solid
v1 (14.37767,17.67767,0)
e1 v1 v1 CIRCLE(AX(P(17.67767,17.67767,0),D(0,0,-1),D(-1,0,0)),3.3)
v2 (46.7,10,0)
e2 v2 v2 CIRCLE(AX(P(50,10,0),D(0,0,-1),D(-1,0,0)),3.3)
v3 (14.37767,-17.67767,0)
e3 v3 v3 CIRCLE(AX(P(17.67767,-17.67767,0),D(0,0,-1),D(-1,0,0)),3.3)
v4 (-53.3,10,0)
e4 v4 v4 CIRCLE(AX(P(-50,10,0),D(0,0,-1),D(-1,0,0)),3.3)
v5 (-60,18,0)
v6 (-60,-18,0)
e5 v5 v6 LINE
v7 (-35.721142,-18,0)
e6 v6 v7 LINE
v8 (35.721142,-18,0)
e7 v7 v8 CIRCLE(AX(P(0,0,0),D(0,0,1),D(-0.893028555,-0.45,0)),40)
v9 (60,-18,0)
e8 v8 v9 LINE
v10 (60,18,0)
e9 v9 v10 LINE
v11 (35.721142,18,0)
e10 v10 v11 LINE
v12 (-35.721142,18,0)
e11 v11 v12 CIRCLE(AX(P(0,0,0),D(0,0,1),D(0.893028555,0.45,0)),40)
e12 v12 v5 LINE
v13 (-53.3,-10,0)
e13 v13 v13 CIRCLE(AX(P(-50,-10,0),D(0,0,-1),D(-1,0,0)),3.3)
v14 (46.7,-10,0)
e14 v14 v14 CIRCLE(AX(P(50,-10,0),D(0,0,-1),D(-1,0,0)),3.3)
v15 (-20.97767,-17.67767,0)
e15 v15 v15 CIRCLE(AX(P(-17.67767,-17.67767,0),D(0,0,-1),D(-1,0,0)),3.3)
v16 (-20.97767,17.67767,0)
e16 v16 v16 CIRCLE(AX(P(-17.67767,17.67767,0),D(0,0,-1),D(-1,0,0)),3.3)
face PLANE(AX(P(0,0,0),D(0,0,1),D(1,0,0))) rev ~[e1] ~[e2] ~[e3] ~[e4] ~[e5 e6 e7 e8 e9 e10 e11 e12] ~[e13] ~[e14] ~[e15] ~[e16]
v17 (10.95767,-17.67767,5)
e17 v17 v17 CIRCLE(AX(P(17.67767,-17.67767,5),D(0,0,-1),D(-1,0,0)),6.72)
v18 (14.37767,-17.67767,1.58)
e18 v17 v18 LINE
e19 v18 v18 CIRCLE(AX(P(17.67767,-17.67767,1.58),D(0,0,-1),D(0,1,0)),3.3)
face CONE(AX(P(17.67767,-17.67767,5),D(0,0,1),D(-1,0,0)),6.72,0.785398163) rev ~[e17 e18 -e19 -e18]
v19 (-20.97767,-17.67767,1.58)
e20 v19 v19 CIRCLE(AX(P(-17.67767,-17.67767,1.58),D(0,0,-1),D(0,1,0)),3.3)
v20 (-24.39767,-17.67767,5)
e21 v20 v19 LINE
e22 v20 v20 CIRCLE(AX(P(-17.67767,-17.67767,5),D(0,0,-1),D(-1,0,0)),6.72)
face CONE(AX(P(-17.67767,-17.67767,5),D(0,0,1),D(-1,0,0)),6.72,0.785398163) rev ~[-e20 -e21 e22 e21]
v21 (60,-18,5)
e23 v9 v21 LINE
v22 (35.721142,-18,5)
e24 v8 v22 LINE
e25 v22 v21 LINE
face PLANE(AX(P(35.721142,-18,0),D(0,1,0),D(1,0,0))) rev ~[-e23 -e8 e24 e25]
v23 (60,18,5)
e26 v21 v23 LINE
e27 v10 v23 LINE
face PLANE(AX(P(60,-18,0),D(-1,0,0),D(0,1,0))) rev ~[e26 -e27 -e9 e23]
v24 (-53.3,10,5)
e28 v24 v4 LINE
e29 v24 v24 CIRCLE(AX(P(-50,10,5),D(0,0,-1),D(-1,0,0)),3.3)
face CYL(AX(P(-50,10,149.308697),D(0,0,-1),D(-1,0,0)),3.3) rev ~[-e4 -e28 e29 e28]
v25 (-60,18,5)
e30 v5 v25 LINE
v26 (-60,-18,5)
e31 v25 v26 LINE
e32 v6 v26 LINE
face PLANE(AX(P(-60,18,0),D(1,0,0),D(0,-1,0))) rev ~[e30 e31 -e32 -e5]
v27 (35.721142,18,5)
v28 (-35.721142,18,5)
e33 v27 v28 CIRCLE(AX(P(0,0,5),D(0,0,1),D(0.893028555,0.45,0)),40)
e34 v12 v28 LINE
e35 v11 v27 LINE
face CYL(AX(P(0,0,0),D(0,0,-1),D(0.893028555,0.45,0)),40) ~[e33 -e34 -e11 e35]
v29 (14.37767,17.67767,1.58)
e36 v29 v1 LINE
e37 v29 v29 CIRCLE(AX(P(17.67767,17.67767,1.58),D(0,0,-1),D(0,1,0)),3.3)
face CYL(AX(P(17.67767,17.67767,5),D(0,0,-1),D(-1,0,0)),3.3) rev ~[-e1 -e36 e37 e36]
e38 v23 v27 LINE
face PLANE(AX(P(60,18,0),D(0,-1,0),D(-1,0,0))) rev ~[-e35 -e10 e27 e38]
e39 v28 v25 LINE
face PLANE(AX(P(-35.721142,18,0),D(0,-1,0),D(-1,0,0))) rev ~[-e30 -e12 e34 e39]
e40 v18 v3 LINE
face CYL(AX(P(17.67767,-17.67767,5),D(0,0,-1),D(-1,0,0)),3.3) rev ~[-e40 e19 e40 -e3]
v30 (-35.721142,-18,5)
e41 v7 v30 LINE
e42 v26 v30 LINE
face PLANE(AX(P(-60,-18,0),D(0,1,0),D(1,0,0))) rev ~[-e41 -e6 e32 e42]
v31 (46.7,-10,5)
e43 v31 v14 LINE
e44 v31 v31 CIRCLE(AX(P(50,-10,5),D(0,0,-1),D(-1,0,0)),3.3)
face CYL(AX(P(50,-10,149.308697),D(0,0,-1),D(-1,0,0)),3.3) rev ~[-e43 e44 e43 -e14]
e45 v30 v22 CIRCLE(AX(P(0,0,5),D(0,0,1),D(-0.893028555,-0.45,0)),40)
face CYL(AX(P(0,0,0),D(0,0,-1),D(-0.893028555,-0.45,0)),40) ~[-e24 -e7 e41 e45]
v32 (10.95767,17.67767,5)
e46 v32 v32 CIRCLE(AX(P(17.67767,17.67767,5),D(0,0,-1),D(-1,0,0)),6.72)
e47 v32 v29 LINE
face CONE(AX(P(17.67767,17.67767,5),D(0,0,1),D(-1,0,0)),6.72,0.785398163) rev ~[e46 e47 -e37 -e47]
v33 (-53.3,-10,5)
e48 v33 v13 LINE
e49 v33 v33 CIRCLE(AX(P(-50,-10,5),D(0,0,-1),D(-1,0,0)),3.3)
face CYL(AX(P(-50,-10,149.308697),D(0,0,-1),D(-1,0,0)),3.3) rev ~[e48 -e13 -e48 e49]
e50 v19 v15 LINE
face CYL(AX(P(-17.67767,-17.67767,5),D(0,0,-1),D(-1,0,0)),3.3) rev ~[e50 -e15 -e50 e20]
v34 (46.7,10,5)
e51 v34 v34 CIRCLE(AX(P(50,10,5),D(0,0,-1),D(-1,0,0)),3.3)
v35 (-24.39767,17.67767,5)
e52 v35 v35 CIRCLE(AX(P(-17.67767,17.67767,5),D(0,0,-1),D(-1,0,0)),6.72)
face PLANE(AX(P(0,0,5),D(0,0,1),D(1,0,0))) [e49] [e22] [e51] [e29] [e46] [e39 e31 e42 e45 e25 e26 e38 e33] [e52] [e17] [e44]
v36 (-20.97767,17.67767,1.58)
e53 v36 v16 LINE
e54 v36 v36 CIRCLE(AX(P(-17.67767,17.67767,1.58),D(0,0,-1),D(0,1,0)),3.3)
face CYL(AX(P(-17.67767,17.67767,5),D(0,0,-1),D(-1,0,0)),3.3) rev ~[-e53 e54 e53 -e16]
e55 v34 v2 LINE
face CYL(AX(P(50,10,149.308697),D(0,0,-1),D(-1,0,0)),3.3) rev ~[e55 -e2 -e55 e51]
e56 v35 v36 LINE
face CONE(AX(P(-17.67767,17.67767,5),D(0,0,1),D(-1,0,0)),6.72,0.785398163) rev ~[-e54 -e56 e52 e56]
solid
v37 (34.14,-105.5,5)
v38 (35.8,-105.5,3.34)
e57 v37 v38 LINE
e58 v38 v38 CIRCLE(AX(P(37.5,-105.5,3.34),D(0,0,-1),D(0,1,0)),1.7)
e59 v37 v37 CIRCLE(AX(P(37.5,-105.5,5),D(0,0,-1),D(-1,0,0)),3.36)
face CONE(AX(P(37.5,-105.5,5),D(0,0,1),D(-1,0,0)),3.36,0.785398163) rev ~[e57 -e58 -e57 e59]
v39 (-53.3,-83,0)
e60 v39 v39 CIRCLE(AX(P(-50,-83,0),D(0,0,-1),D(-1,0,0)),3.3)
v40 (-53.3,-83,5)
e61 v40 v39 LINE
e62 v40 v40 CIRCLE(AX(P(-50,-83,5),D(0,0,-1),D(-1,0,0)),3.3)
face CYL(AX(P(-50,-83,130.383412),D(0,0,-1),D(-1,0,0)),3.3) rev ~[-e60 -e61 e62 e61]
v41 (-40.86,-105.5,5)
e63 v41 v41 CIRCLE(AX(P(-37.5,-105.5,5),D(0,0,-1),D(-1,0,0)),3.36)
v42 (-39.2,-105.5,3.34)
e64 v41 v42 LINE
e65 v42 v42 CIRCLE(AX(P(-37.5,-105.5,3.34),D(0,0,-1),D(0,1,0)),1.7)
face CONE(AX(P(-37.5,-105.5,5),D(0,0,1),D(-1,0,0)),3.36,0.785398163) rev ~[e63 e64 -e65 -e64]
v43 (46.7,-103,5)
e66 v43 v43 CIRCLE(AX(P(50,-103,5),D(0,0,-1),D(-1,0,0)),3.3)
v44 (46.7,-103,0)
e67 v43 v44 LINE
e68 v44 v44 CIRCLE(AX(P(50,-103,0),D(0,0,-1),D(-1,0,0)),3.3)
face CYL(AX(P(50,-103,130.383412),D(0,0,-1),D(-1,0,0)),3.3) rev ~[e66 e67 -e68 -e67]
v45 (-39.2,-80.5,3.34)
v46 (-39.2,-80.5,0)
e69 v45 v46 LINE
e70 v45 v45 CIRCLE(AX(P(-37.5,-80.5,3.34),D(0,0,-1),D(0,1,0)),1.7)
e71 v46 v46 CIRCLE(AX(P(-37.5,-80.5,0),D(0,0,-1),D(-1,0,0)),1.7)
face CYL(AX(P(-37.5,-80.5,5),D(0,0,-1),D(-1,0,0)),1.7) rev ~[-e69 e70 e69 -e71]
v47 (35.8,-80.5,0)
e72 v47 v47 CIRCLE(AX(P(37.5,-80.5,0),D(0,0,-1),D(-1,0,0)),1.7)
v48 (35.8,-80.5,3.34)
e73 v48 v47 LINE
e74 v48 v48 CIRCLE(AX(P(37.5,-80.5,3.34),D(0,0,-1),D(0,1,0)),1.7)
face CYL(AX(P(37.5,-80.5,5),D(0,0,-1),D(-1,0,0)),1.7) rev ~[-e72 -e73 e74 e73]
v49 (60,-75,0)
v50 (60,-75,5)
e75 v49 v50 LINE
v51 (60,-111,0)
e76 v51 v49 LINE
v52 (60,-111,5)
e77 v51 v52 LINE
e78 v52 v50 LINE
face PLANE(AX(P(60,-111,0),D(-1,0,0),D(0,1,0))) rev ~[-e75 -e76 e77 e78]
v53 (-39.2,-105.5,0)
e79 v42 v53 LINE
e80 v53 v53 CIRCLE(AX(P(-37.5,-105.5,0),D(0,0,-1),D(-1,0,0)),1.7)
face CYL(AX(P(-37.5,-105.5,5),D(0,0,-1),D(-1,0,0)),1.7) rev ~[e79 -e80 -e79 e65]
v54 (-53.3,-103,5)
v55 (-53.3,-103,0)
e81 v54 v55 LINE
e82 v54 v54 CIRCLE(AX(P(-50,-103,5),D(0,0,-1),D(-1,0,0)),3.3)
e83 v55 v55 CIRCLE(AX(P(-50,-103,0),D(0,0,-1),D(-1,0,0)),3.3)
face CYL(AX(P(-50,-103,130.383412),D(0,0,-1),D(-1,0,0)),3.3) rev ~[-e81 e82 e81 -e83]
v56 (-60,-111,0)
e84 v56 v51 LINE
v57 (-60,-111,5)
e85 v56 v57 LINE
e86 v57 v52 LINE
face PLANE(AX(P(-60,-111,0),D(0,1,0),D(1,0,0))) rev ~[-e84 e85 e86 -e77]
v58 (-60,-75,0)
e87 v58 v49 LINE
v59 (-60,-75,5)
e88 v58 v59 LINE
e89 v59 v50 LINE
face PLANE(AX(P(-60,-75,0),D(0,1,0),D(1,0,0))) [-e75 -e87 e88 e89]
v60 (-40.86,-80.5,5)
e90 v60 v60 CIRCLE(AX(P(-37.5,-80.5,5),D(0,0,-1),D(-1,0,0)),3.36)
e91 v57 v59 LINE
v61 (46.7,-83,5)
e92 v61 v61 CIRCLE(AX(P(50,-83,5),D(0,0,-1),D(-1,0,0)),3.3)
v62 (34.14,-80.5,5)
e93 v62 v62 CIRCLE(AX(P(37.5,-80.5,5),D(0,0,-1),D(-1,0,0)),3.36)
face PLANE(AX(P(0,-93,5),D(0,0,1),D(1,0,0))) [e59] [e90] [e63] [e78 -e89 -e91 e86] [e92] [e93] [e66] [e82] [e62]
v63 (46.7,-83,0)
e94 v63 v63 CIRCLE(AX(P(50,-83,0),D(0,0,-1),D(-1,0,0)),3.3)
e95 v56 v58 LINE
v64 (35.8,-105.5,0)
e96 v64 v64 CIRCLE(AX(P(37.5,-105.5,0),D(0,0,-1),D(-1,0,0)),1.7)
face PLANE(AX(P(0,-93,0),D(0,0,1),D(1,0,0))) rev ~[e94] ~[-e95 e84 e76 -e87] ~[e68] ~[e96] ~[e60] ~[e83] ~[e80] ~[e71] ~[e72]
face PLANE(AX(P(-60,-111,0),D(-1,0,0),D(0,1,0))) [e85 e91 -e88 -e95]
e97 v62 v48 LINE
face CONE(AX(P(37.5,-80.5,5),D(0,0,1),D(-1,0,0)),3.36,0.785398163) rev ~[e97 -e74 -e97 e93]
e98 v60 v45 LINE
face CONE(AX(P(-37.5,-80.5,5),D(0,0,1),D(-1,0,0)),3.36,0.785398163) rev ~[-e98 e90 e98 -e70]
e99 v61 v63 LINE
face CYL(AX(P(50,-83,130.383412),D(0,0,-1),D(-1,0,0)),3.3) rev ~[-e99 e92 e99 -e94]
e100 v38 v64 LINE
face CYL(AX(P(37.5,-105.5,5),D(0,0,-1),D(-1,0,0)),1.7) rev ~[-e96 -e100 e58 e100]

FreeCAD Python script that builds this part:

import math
import FreeCAD as App
import Part
import Sketcher
from FreeCAD import Vector


def add_polygon(sketch, points):
    """Adds a closed chain of lines whose ends are joined by coincident constraints."""
    first, n = sketch.GeometryCount, len(points)
    for a, b in zip(points, points[1:] + points[:1]):
        sketch.addGeometry(Part.LineSegment(App.Vector(*a, 0), App.Vector(*b, 0)), False)
    for i in range(n):
        sketch.addConstraint(Sketcher.Constraint("Coincident", first + i, 2, first + (i + 1) % n, 1))

doc = App.newDocument("Part")
body = doc.addObject("PartDesign::Body", "Body")

# Sketch on XY plane
sketch1 = body.newObject("Sketcher::SketchObject", "Sketch")
sketch1.AttachmentSupport = (doc.getObject("XY_Plane"), [""])
sketch1.MapMode = "FlatFace"
sketch1.addGeometry([
    Part.LineSegment(Vector(-60, 18, 0), Vector(-60, -18, 0)),  # 0
    Part.LineSegment(Vector(-60, -18, 0), Vector(-36, -18, 0)),  # 1
    Part.ArcOfCircle(Part.Circle(Vector(0, 0, 0), Vector(0, 0, 1), 40), math.radians(-153), math.radians(-27)),  # 2
    Part.LineSegment(Vector(36, -18, 0), Vector(60, -18, 0)),  # 3
    Part.LineSegment(Vector(60, -18, 0), Vector(60, 18, 0)),  # 4
    Part.LineSegment(Vector(60, 18, 0), Vector(36, 18, 0)),  # 5
    Part.ArcOfCircle(Part.Circle(Vector(0, 0, 0), Vector(0, 0, 1), 40), math.radians(27), math.radians(153)),  # 6
    Part.LineSegment(Vector(-36, 18, 0), Vector(-60, 18, 0)),  # 7
], False)
sketch1.addConstraint([
    Sketcher.Constraint("Coincident", 0, 2, 1, 1),
    Sketcher.Constraint("Coincident", 1, 2, 2, 1),
    Sketcher.Constraint("Coincident", 2, 2, 3, 1),
    Sketcher.Constraint("Coincident", 3, 2, 4, 1),
    Sketcher.Constraint("Coincident", 4, 2, 5, 1),
    Sketcher.Constraint("Coincident", 5, 2, 6, 1),
    Sketcher.Constraint("Coincident", 6, 2, 7, 1),
    Sketcher.Constraint("Coincident", 7, 2, 0, 1),
    Sketcher.Constraint("Vertical", 0),
    Sketcher.Constraint("Horizontal", 1),
    Sketcher.Constraint("Horizontal", 3),
    Sketcher.Constraint("Vertical", 4),
    Sketcher.Constraint("Horizontal", 5),
    Sketcher.Constraint("Horizontal", 7),
    Sketcher.Constraint("Coincident", 2, 3, -1, 1),
    Sketcher.Constraint("Coincident", 6, 3, -1, 1),
    Sketcher.Constraint("Equal", 2, 6),
    Sketcher.Constraint("Symmetric", 0, 2, 4, 2, -1, 1),
    Sketcher.Constraint("Horizontal", 1, 2, 2, 2),
    Sketcher.Constraint("Horizontal", 5, 2, 6, 2),
    Sketcher.Constraint("Radius", 2, 40.0),
    Sketcher.Constraint("DistanceY", 0, 2, 0, 1, 36.0),
    Sketcher.Constraint("DistanceX", 0, 2, -1, 1, 60.0),
])
pad1 = body.newObject("PartDesign::Pad", "Pad")
pad1.Profile = sketch1
pad1.Length = 5

# Sketch on XY plane
sketch2 = body.newObject("Sketcher::SketchObject", "Sketch001")
sketch2.AttachmentSupport = (doc.getObject("XY_Plane"), [""])
sketch2.MapMode = "FlatFace"
sketch2.AttachmentOffset = App.Placement(Vector(0, 0, 5), App.Rotation())
sketch2.addGeometry([
    Part.Circle(Vector(-17.7, 17.7, 0), Vector(0, 0, 1), 3.3),
    Part.Circle(Vector(17.7, 17.7, 0), Vector(0, 0, 1), 3.3),
    Part.Circle(Vector(17.7, -17.7, 0), Vector(0, 0, 1), 3.3),
    Part.Circle(Vector(-17.7, -17.7, 0), Vector(0, 0, 1), 3.3),
], False)
sketch2.addConstraint([
    Sketcher.Constraint("Equal", 0, 1),
    Sketcher.Constraint("Equal", 1, 2),
    Sketcher.Constraint("Equal", 2, 3),
    Sketcher.Constraint("Symmetric", 0, 3, 2, 3, -1, 1),
    Sketcher.Constraint("Symmetric", 1, 3, 3, 3, -1, 1),
    Sketcher.Constraint("Symmetric", 0, 3, 1, 3, -2),
    Sketcher.Constraint("Diameter", 0, 6.6),
    Sketcher.Constraint("DistanceX", 0, 3, -1, 1, 17.67767),
    Sketcher.Constraint("DistanceY", -1, 1, 0, 3, 17.67767),
])
doc.recompute()
hole = body.newObject("PartDesign::Hole", "Hole")
hole.Profile = sketch2
hole.ThreadType = "None"
hole.Diameter = 6.6
hole.DepthType = "ThroughAll"
hole.HoleCutType = "Countersink"
hole.HoleCutDiameter = 13.44
hole.HoleCutCountersinkAngle = 90

# Sketch on XY plane
sketch3 = body.newObject("Sketcher::SketchObject", "Sketch002")
sketch3.AttachmentSupport = (doc.getObject("XY_Plane"), [""])
sketch3.MapMode = "FlatFace"
sketch3.AttachmentOffset = App.Placement(Vector(0, 0, 5), App.Rotation())
sketch3.addGeometry([
    Part.Circle(Vector(-50, 10, 0), Vector(0, 0, 1), 3.3),
    Part.Circle(Vector(-50, -10, 0), Vector(0, 0, 1), 3.3),
    Part.Circle(Vector(50, -10, 0), Vector(0, 0, 1), 3.3),
    Part.Circle(Vector(50, 10, 0), Vector(0, 0, 1), 3.3),
], False)
sketch3.addConstraint([
    Sketcher.Constraint("Equal", 0, 1),
    Sketcher.Constraint("Equal", 1, 2),
    Sketcher.Constraint("Equal", 2, 3),
    Sketcher.Constraint("Symmetric", 0, 3, 2, 3, -1, 1),
    Sketcher.Constraint("Symmetric", 1, 3, 3, 3, -1, 1),
    Sketcher.Constraint("Symmetric", 1, 3, 2, 3, -2),
    Sketcher.Constraint("Diameter", 0, 6.6),
    Sketcher.Constraint("DistanceX", 0, 3, -1, 1, 50.0),
    Sketcher.Constraint("DistanceY", -1, 1, 0, 3, 10.0),
])
doc.recompute()
hole2 = body.newObject("PartDesign::Hole", "Hole001")
hole2.Profile = sketch3
hole2.ThreadType = "None"
hole2.Diameter = 6.6
hole2.DepthType = "ThroughAll"
body2 = doc.addObject("PartDesign::Body", "Body001")

# Sketch on XY plane
sketch4 = body2.newObject("Sketcher::SketchObject", "Sketch003")
sketch4.AttachmentSupport = (doc.getObject("XY_Plane001"), [""])
sketch4.MapMode = "FlatFace"
add_polygon(sketch4, [(-60, -75), (-60, -111), (60, -111), (60, -75)])  # lines 0-3
sketch4.addConstraint([
    Sketcher.Constraint("Vertical", 0),
    Sketcher.Constraint("Horizontal", 1),
    Sketcher.Constraint("Vertical", 2),
    Sketcher.Constraint("Horizontal", 3),
    Sketcher.Constraint("DistanceX", 1, 1, 1, 2, 120.0),
    Sketcher.Constraint("DistanceY", 0, 2, 0, 1, 36.0),
    Sketcher.Constraint("DistanceX", 0, 2, -1, 1, 60.0),
    Sketcher.Constraint("DistanceY", 0, 2, -1, 1, 111.0),
])
pad2 = body2.newObject("PartDesign::Pad", "Pad001")
pad2.Profile = sketch4
pad2.Length = 5

# Sketch on XY plane
sketch5 = body2.newObject("Sketcher::SketchObject", "Sketch004")
sketch5.AttachmentSupport = (doc.getObject("XY_Plane001"), [""])
sketch5.MapMode = "FlatFace"
sketch5.AttachmentOffset = App.Placement(Vector(0, 0, 5), App.Rotation())
sketch5.addGeometry([
    Part.Circle(Vector(-37.5, -80.5, 0), Vector(0, 0, 1), 1.7),
    Part.Circle(Vector(37.5, -80.5, 0), Vector(0, 0, 1), 1.7),
    Part.Circle(Vector(37.5, -105.5, 0), Vector(0, 0, 1), 1.7),
    Part.Circle(Vector(-37.5, -105.5, 0), Vector(0, 0, 1), 1.7),
], False)
sketch5.addConstraint([
    Sketcher.Constraint("Equal", 0, 1),
    Sketcher.Constraint("Equal", 1, 2),
    Sketcher.Constraint("Equal", 2, 3),
    Sketcher.Constraint("Symmetric", 0, 3, 1, 3, -2),
    Sketcher.Constraint("Symmetric", 2, 3, 3, 3, -2),
    Sketcher.Constraint("Vertical", 1, 3, 2, 3),
    Sketcher.Constraint("Diameter", 0, 3.4),
    Sketcher.Constraint("DistanceX", 0, 3, 1, 3, 75.0),
    Sketcher.Constraint("DistanceY", 2, 3, 1, 3, 25.0),
    Sketcher.Constraint("DistanceY", 0, 3, -1, 1, 80.5),
])
doc.recompute()
hole3 = body2.newObject("PartDesign::Hole", "Hole002")
hole3.Profile = sketch5
hole3.ThreadType = "None"
hole3.Diameter = 3.4
hole3.DepthType = "ThroughAll"
hole3.HoleCutType = "Countersink"
hole3.HoleCutDiameter = 6.72
hole3.HoleCutCountersinkAngle = 90

# Sketch on XY plane
sketch6 = body2.newObject("Sketcher::SketchObject", "Sketch005")
sketch6.AttachmentSupport = (doc.getObject("XY_Plane001"), [""])
sketch6.MapMode = "FlatFace"
sketch6.AttachmentOffset = App.Placement(Vector(0, 0, 5), App.Rotation())
sketch6.addGeometry([
    Part.Circle(Vector(-50, -83, 0), Vector(0, 0, 1), 3.3),
    Part.Circle(Vector(-50, -103, 0), Vector(0, 0, 1), 3.3),
    Part.Circle(Vector(50, -83, 0), Vector(0, 0, 1), 3.3),
    Part.Circle(Vector(50, -103, 0), Vector(0, 0, 1), 3.3),
], False)
sketch6.addConstraint([
    Sketcher.Constraint("Equal", 0, 1),
    Sketcher.Constraint("Equal", 1, 2),
    Sketcher.Constraint("Equal", 2, 3),
    Sketcher.Constraint("Symmetric", 0, 3, 2, 3, -2),
    Sketcher.Constraint("Symmetric", 1, 3, 3, 3, -2),
    Sketcher.Constraint("Vertical", 0, 3, 1, 3),
    Sketcher.Constraint("Diameter", 0, 6.6),
    Sketcher.Constraint("DistanceX", 0, 3, -1, 1, 50.0),
    Sketcher.Constraint("DistanceY", 0, 3, -1, 1, 83.0),
    Sketcher.Constraint("DistanceY", 1, 3, -1, 1, 103.0),
])
doc.recompute()
hole4 = body2.newObject("PartDesign::Hole", "Hole003")
hole4.Profile = sketch6
hole4.ThreadType = "None"
hole4.Diameter = 6.6
hole4.DepthType = "ThroughAll"

doc.recompute()
